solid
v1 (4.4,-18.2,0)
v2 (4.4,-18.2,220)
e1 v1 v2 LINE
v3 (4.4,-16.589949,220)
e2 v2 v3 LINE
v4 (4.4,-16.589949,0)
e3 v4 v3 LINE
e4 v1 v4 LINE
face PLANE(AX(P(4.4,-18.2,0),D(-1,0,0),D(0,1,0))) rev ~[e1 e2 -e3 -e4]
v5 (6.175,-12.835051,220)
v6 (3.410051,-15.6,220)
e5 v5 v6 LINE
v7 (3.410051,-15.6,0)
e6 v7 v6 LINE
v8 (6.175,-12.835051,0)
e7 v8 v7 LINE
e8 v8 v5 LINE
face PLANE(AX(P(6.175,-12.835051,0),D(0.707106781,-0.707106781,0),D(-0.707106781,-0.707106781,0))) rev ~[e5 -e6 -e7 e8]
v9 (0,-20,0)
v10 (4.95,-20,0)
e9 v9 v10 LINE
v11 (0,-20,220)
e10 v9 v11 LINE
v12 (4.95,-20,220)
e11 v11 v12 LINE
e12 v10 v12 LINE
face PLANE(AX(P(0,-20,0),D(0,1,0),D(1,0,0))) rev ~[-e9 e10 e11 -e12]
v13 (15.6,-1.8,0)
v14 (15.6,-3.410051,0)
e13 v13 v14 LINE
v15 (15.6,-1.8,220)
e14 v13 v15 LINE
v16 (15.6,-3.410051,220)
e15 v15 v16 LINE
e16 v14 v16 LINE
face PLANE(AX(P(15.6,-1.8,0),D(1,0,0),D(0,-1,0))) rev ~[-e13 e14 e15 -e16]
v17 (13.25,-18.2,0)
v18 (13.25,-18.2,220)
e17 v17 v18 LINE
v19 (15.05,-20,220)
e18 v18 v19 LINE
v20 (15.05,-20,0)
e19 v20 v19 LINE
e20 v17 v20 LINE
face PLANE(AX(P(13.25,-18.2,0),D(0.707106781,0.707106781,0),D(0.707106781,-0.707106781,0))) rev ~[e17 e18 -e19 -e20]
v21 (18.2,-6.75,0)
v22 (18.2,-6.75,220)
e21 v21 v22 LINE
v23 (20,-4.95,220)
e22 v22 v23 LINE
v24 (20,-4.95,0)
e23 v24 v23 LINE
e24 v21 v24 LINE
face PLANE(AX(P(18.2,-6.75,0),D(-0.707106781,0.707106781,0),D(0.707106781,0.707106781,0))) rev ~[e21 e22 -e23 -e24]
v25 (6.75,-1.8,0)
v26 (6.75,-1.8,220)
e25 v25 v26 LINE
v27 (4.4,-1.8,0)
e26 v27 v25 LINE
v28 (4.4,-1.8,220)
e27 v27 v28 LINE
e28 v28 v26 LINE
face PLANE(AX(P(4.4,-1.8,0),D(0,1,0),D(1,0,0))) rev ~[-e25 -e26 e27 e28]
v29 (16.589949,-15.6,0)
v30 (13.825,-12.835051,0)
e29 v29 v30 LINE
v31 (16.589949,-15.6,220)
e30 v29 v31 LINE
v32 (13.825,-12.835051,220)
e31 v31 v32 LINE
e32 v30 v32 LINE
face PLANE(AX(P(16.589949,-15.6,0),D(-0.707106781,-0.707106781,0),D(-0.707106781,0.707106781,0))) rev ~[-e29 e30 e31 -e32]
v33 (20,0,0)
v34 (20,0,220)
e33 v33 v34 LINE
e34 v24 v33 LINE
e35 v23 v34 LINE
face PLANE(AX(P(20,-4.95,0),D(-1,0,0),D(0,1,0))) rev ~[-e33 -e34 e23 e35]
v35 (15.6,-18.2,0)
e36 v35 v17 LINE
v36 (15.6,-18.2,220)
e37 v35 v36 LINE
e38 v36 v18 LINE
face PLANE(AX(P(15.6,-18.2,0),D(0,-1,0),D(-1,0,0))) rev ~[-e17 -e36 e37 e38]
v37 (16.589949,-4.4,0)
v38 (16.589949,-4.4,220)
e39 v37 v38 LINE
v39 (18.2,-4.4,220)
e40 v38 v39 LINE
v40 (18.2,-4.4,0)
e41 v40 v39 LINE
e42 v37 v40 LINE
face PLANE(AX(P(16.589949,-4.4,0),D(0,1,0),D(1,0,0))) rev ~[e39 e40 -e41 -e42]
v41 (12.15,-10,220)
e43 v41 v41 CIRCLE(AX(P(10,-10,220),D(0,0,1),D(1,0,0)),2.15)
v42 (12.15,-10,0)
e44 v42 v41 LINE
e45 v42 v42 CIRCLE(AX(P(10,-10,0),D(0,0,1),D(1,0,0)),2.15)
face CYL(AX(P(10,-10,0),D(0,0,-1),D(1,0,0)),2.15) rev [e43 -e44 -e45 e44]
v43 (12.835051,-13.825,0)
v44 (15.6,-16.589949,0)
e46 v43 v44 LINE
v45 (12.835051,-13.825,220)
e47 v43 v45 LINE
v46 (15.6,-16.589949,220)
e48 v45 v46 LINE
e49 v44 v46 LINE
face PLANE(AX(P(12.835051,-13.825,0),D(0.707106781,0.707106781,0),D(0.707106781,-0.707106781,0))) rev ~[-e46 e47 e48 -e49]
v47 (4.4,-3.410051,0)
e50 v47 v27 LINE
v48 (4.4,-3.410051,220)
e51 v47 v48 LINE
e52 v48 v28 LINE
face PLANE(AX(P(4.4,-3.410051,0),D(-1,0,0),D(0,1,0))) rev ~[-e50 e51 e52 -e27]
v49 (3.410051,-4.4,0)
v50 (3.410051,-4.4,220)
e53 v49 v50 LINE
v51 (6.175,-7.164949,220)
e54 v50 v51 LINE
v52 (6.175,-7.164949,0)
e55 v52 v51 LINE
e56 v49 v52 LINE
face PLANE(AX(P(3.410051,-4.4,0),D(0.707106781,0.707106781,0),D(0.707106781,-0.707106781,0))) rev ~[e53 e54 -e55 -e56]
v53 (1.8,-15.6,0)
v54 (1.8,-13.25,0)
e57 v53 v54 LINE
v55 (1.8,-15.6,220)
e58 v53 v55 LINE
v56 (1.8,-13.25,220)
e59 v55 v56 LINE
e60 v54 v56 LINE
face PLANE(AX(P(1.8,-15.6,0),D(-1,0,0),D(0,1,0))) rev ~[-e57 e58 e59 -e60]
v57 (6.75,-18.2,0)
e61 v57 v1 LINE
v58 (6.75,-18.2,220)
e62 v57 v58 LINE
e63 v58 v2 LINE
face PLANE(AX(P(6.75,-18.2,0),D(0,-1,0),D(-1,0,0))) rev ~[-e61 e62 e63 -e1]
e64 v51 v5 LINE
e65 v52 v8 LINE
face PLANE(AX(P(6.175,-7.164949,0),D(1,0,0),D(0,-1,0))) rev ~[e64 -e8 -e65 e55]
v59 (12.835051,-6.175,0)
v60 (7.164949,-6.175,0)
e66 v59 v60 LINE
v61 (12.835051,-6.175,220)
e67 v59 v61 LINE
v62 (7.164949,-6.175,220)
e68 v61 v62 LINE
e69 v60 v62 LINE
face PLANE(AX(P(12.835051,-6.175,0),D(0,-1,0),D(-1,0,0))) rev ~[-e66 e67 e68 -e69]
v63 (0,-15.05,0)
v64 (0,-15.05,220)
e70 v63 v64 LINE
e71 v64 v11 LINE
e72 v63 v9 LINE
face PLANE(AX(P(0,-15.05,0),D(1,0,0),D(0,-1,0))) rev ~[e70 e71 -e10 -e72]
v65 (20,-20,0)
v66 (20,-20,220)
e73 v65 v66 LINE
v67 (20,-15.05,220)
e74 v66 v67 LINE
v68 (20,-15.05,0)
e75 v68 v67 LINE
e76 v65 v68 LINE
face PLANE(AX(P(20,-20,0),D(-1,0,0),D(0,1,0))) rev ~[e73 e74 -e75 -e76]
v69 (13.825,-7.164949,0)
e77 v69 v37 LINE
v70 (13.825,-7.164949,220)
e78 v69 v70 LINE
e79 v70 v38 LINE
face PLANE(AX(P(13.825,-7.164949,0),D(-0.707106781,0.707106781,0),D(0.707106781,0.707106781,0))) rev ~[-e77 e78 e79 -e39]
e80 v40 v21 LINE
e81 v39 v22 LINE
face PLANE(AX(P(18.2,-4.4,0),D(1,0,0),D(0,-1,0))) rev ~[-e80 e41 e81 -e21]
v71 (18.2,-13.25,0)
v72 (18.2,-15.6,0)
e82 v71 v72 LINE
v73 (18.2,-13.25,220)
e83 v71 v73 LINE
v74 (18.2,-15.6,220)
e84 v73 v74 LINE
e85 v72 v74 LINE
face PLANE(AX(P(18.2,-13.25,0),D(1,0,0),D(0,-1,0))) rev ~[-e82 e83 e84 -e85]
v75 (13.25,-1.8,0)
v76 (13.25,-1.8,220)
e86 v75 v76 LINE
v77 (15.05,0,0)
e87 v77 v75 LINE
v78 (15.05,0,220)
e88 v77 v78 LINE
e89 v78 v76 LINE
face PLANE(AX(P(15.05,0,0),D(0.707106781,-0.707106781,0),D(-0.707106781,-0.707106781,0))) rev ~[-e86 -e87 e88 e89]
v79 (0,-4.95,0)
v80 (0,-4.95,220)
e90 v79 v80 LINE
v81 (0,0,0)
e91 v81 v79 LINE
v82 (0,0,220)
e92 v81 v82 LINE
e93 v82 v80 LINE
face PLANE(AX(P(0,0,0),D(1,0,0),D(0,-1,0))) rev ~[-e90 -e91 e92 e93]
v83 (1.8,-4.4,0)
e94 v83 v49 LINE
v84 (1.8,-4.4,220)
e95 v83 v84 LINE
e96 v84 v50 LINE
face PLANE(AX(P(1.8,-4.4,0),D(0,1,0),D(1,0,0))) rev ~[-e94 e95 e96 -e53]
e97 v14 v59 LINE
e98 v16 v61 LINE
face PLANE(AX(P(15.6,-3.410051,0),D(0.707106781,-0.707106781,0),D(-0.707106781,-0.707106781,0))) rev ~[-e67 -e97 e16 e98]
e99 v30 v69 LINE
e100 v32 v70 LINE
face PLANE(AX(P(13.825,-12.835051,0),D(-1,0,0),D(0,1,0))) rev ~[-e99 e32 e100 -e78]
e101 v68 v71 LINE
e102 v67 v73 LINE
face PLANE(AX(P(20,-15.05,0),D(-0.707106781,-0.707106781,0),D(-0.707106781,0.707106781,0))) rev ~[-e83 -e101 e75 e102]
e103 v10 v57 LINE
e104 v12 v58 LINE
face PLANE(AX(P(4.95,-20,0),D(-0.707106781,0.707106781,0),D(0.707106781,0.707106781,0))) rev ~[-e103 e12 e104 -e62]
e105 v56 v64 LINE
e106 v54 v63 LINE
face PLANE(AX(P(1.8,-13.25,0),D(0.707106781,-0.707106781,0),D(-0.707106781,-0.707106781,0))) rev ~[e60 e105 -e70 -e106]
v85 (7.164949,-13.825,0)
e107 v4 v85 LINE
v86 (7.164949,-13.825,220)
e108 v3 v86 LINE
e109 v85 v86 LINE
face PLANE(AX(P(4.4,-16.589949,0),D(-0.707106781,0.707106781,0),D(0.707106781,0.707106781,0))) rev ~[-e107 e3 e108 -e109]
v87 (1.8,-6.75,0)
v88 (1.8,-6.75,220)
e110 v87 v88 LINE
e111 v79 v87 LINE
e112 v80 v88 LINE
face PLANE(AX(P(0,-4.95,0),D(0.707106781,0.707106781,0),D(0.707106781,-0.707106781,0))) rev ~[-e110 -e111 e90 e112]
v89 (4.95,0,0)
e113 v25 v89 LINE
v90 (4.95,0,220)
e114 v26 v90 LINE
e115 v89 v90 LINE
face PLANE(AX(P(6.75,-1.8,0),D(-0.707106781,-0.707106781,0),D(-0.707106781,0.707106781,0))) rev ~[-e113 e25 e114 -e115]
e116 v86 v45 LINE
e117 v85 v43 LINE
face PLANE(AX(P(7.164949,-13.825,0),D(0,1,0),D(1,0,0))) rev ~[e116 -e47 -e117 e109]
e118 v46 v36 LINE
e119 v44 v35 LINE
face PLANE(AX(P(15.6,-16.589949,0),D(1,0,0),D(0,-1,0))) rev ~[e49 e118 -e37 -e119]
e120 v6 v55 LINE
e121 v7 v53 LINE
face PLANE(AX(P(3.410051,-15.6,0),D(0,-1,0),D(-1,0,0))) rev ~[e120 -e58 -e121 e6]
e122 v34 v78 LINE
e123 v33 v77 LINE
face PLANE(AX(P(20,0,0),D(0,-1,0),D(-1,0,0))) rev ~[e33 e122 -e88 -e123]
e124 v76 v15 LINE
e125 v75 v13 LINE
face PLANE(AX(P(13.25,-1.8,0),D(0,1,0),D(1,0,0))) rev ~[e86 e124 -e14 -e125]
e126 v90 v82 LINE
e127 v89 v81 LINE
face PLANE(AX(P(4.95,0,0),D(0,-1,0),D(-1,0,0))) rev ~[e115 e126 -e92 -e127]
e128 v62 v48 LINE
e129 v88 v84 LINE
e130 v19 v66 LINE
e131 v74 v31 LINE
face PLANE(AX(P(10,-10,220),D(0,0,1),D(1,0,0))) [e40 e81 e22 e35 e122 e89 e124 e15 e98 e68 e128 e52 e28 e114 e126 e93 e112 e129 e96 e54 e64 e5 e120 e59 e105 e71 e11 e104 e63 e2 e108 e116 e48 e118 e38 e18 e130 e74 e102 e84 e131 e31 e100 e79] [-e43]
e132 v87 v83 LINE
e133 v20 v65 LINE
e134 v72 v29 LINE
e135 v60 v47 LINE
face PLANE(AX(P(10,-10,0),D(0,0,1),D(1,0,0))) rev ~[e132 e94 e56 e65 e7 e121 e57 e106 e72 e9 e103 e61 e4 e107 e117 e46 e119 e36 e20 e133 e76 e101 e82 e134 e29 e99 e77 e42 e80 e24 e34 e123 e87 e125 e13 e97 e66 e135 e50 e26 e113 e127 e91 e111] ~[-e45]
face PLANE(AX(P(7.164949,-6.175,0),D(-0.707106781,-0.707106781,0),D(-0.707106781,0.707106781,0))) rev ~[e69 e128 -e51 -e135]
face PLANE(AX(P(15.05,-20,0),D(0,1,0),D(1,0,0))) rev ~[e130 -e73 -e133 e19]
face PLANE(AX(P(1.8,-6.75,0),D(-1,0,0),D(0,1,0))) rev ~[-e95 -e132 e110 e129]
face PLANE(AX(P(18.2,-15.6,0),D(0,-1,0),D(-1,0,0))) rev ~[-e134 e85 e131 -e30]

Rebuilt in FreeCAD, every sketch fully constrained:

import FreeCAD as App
import Part
import Sketcher

V = App.Vector
Q = App.Units.Quantity


def add_polygon(sketch, points):
    """Adds a closed chain of lines whose ends are joined by coincident constraints."""
    first, n = sketch.GeometryCount, len(points)
    for a, b in zip(points, points[1:] + points[:1]):
        sketch.addGeometry(Part.LineSegment(App.Vector(*a, 0), App.Vector(*b, 0)), False)
    for i in range(n):
        sketch.addConstraint(Sketcher.Constraint("Coincident", first + i, 2, first + (i + 1) % n, 1))

doc = App.newDocument("Part")
params = doc.addObject("Spreadsheet::Sheet", "Params")
for row, (alias, value) in enumerate([
    ("sketch1_diameter", "4.3 mm"),
    ("sketch1_width", "4.95 mm"),
    ("sketch1_width2", "2.35 mm"),
    ("pad1_length", "220 mm"),
], start=1):
    params.set(f"A{row}", alias)
    params.set(f"B{row}", "=" + value)
    params.setAlias(f"B{row}", alias)

body = doc.addObject("PartDesign::Body", "Body")

# Sketch on XY plane
sketch1 = body.newObject("Sketcher::SketchObject", "Sketch")
sketch1.AttachmentSupport = (doc.getObject("XY_Plane"), [""])
sketch1.MapMode = "FlatFace"
add_polygon(sketch1, [(0, 0), (0, -5), (1.8, -6.8), (1.8, -4.4), (3.4, -4.4), (6.2, -7.2), (6.2, -12.8), (3.4, -15.6), (1.8, -15.6), (1.8, -13.2), (0, -15.1), (0, -20), (5, -20), (6.8, -18.2), (4.4, -18.2), (4.4, -16.6), (7.2, -13.8), (12.8, -13.8), (15.6, -16.6), (15.6, -18.2), (13.2, -18.2), (15.1, -20), (20, -20), (20, -15.1), (18.2, -13.2), (18.2, -15.6), (16.6, -15.6), (13.8, -12.8), (13.8, -7.2), (16.6, -4.4), (18.2, -4.4), (18.2, -6.8), (20, -5), (20, 0), (15.1, 0), (13.2, -1.8), (15.6, -1.8), (15.6, -3.4), (12.8, -6.2), (7.2, -6.2), (4.4, -3.4), (4.4, -1.8), (6.8, -1.8), (5, 0)])  # lines 0-43
sketch1.addGeometry(Part.Circle(V(10, -10, 0), V(0, 0, 1), 2.1), False)  # 44
sketch1.addConstraint([
    Sketcher.Constraint("Vertical", 0),
    Sketcher.Constraint("Vertical", 2),
    Sketcher.Constraint("Horizontal", 3),
    Sketcher.Constraint("Vertical", 5),
    Sketcher.Constraint("Horizontal", 7),
    Sketcher.Constraint("Vertical", 8),
    Sketcher.Constraint("Vertical", 10),
    Sketcher.Constraint("Horizontal", 11),
    Sketcher.Constraint("Horizontal", 13),
    Sketcher.Constraint("Vertical", 14),
    Sketcher.Constraint("Horizontal", 16),
    Sketcher.Constraint("Vertical", 18),
    Sketcher.Constraint("Horizontal", 19),
    Sketcher.Constraint("Horizontal", 21),
    Sketcher.Constraint("Vertical", 22),
    Sketcher.Constraint("Vertical", 24),
    Sketcher.Constraint("Horizontal", 25),
    Sketcher.Constraint("Vertical", 27),
    Sketcher.Constraint("Horizontal", 29),
    Sketcher.Constraint("Vertical", 30),
    Sketcher.Constraint("Vertical", 32),
    Sketcher.Constraint("Horizontal", 33),
    Sketcher.Constraint("Horizontal", 35),
    Sketcher.Constraint("Vertical", 36),
    Sketcher.Constraint("Horizontal", 38),
    Sketcher.Constraint("Vertical", 40),
    Sketcher.Constraint("Horizontal", 41),
    Sketcher.Constraint("Horizontal", 43),
    Sketcher.Constraint("Coincident", 43, 2, -1, 1),
    Sketcher.Constraint("PointOnObject", 9, 2, -2),
    Sketcher.Constraint("PointOnObject", 32, 2, -1),
    Sketcher.Constraint("Parallel", 1, 4),
    Sketcher.Constraint("Perpendicular", 4, 6),
    Sketcher.Constraint("Parallel", 6, 9),
    Sketcher.Constraint("Parallel", 9, 12),
    Sketcher.Constraint("Parallel", 12, 15),
    Sketcher.Constraint("Perpendicular", 15, 17),
    Sketcher.Constraint("Parallel", 17, 20),
    Sketcher.Constraint("Parallel", 20, 23),
    Sketcher.Constraint("Parallel", 23, 26),
    Sketcher.Constraint("Perpendicular", 26, 28),
    Sketcher.Constraint("Parallel", 28, 31),
    Sketcher.Constraint("Parallel", 31, 34),
    Sketcher.Constraint("Parallel", 34, 37),
    Sketcher.Constraint("Perpendicular", 37, 39),
    Sketcher.Constraint("Parallel", 39, 42),
    Sketcher.Constraint("Horizontal", 14, 2, 17, 2),
    Sketcher.Constraint("Horizontal", 13, 2, 18, 2),
    Sketcher.Constraint("Horizontal", 11, 2, 20, 2),
    Sketcher.Constraint("Horizontal", 9, 2, 22, 2),
    Sketcher.Constraint("Horizontal", 8, 2, 23, 2),
    Sketcher.Constraint("Horizontal", 7, 2, 24, 2),
    Sketcher.Constraint("Horizontal", 5, 2, 26, 2),
    Sketcher.Constraint("Horizontal", 4, 2, 27, 2),
    Sketcher.Constraint("Horizontal", 3, 2, 28, 2),
    Sketcher.Constraint("Horizontal", 1, 2, 30, 2),
    Sketcher.Constraint("Horizontal", 0, 2, 31, 2),
    Sketcher.Constraint("Horizontal", 36, 2, 39, 2),
    Sketcher.Constraint("Horizontal", 35, 2, 40, 2),
    Sketcher.Constraint("Vertical", 3, 2, 6, 2),
    Sketcher.Constraint("Vertical", 2, 2, 7, 2),
    Sketcher.Constraint("Vertical", 25, 2, 28, 2),
    Sketcher.Constraint("Vertical", 24, 2, 29, 2),
    Sketcher.Constraint("Vertical", 20, 2, 33, 2),
    Sketcher.Constraint("Vertical", 19, 2, 34, 2),
    Sketcher.Constraint("Vertical", 18, 2, 35, 2),
    Sketcher.Constraint("Vertical", 16, 2, 37, 2),
    Sketcher.Constraint("Vertical", 15, 2, 38, 2),
    Sketcher.Constraint("Vertical", 12, 2, 41, 2),
    Sketcher.Constraint("Equal", 13, 19),
    Sketcher.Constraint("Equal", 11, 21),
    Sketcher.Constraint("Equal", 7, 25),
    Sketcher.Constraint("Equal", 43, 0),
    Sketcher.Constraint("Equal", 41, 2),
    Sketcher.Constraint("Equal", 38, 5),
    Sketcher.Constraint("Equal", 2, 8),
    Sketcher.Constraint("Equal", 0, 10),
    Sketcher.Constraint("Equal", 29, 14),
    Sketcher.Constraint("Equal", 18, 36),
    Sketcher.Constraint("Equal", 9, 12),
    Sketcher.Constraint("Equal", 6, 15),
    Sketcher.Constraint("Diameter", 44, Q("4.3 mm")),
    Sketcher.Constraint("DistanceX", -1, 1, 44, 3, Q("10 mm")),
    Sketcher.Constraint("DistanceY", 44, 3, -1, 1, Q("10 mm")),
    Sketcher.Constraint("DistanceY", 10, 2, -1, 1, Q("20 mm")),
    Sketcher.Constraint("DistanceX", 11, 1, 11, 2, Q("4.95 mm")),
    Sketcher.Constraint("DistanceX", 13, 2, 13, 1, Q("2.35 mm")),
    Sketcher.Constraint("DistanceX", -1, 1, 1, 2, Q("1.8 mm")),
    Sketcher.Constraint("DistanceX", 4, 2, 27, 2, Q("7.65 mm")),
    Sketcher.Constraint("DistanceX", 16, 1, 16, 2, Q("5.670101 mm")),
])
sketch1.setExpression("Constraints[125]", "Params.sketch1_diameter")
sketch1.setExpression("Constraints[129]", "Params.sketch1_width")
sketch1.setExpression("Constraints[130]", "Params.sketch1_width2")
pad1 = body.newObject("PartDesign::Pad", "Pad")
pad1.Profile = sketch1
pad1.setExpression("Length", "Params.pad1_length")

doc.recompute()
